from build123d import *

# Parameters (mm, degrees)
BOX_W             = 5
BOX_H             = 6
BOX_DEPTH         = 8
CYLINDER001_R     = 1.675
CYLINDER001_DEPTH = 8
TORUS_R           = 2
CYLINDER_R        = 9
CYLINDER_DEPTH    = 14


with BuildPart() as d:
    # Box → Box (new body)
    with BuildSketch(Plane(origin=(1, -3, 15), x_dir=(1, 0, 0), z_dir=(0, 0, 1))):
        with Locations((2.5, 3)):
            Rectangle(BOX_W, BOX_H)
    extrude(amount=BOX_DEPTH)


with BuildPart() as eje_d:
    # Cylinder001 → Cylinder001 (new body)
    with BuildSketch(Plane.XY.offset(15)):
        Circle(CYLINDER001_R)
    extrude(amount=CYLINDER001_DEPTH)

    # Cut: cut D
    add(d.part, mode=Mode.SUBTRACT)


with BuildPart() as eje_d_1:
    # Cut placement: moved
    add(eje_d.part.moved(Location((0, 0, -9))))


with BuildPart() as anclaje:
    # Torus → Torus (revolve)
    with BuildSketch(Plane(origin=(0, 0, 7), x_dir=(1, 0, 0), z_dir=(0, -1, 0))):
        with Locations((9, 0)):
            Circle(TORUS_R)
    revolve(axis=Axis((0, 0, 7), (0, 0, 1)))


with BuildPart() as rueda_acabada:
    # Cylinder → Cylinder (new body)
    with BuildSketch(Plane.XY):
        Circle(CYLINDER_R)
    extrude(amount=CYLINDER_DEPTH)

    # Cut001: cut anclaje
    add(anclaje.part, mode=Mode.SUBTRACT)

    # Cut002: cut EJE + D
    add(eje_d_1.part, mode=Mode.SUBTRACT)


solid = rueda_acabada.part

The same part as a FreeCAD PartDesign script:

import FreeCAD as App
import Part
import Sketcher

V = App.Vector
Q = App.Units.Quantity

doc = App.newDocument("Part")
params = doc.addObject("Spreadsheet::Sheet", "Params")
for row, (alias, value) in enumerate([
    ("sketch1_width", "5 mm"),
    ("sketch1_height", "6 mm"),
    ("pad1_length", "8 mm"),
    ("sketch2_diameter", "3.35 mm"),
    ("pad2_length", "8 mm"),
    ("sketch3_diameter", "4 mm"),
    ("revolution_angle", "360 deg"),
    ("sketch4_diameter", "18 mm"),
    ("pad3_length", "14 mm"),
], start=1):
    params.set(f"A{row}", alias)
    params.set(f"B{row}", "=" + value)
    params.setAlias(f"B{row}", alias)

body = doc.addObject("PartDesign::Body", "Body")

# Sketch on XY plane
sketch1 = body.newObject("Sketcher::SketchObject", "Sketch")
sketch1.AttachmentSupport = (doc.getObject("XY_Plane"), [""])
sketch1.MapMode = "FlatFace"
sketch1.AttachmentOffset = App.Placement(V(0, 0, 15), App.Rotation())
sketch1.addGeometry([
    Part.LineSegment(V(1, 3, 0), V(1, -3, 0)),
    Part.LineSegment(V(1, -3, 0), V(6, -3, 0)),
    Part.LineSegment(V(6, -3, 0), V(6, 3, 0)),
    Part.LineSegment(V(6, 3, 0), V(1, 3, 0)),
], False)
sketch1.addConstraint([
    Sketcher.Constraint("Coincident", 0, 2, 1, 1),
    Sketcher.Constraint("Coincident", 1, 2, 2, 1),
    Sketcher.Constraint("Coincident", 2, 2, 3, 1),
    Sketcher.Constraint("Coincident", 3, 2, 0, 1),
    Sketcher.Constraint("Vertical", 0),
    Sketcher.Constraint("Horizontal", 1),
    Sketcher.Constraint("Vertical", 2),
    Sketcher.Constraint("Horizontal", 3),
    Sketcher.Constraint("DistanceX", 1, 1, 1, 2, Q("5 mm")),
    Sketcher.Constraint("DistanceY", 0, 2, 0, 1, Q("6 mm")),
    Sketcher.Constraint("DistanceX", -1, 1, 0, 2, Q("1 mm")),
    Sketcher.Constraint("DistanceY", 0, 2, -1, 1, Q("3 mm")),
])
sketch1.setExpression("Constraints[8]", "Params.sketch1_width")
sketch1.setExpression("Constraints[9]", "Params.sketch1_height")
pad1 = body.newObject("PartDesign::Pad", "Pad")
pad1.Profile = sketch1
pad1.setExpression("Length", "Params.pad1_length")
body2 = doc.addObject("PartDesign::Body", "Body001")

# Sketch on XY plane
sketch2 = body2.newObject("Sketcher::SketchObject", "Sketch001")
sketch2.AttachmentSupport = (doc.getObject("XY_Plane001"), [""])
sketch2.MapMode = "FlatFace"
sketch2.AttachmentOffset = App.Placement(V(0, 0, 15), App.Rotation())
sketch2.addGeometry(Part.Circle(V(0, 0, 0), V(0, 0, 1), 1.7), False)
sketch2.addConstraint([
    Sketcher.Constraint("Coincident", 0, 3, -1, 1),
    Sketcher.Constraint("Diameter", 0, Q("3.35 mm")),
])
sketch2.setExpression("Constraints[1]", "Params.sketch2_diameter")
pad2 = body2.newObject("PartDesign::Pad", "Pad001")
pad2.Profile = sketch2
pad2.setExpression("Length", "Params.pad2_length")
doc.recompute()

boolean = body2.newObject("PartDesign::Boolean", "Boolean")
boolean.Type = "Cut"
boolean.addObjects([body])
body3 = doc.addObject("PartDesign::Body", "Body002")
doc.recompute()

body2.Placement = App.Placement(V(0, 0, -9), App.Rotation(V(0, 0, 1), 0))
boolean2 = body3.newObject("PartDesign::Boolean", "Boolean001")
boolean2.Type = "Fuse"
boolean2.addObjects([body2])
body4 = doc.addObject("PartDesign::Body", "Body003")

# Sketch on XZ plane
sketch3 = body4.newObject("Sketcher::SketchObject", "Sketch002")
sketch3.AttachmentSupport = (doc.getObject("XZ_Plane003"), [""])
sketch3.MapMode = "FlatFace"
sketch3.addGeometry(Part.Circle(V(9, 7, 0), V(0, 0, 1), 2), False)
sketch3.addConstraint([
    Sketcher.Constraint("Diameter", 0, Q("4 mm")),
    Sketcher.Constraint("DistanceX", -1, 1, 0, 3, Q("9 mm")),
    Sketcher.Constraint("DistanceY", -1, 1, 0, 3, Q("7 mm")),
])
sketch3.setExpression("Constraints[0]", "Params.sketch3_diameter")
revolution = body4.newObject("PartDesign::Revolution", "Revolution")
revolution.Profile = sketch3
revolution.ReferenceAxis = (sketch3, ["V_Axis"])
revolution.setExpression("Angle", "Params.revolution_angle")
body5 = doc.addObject("PartDesign::Body", "Body004")

# Sketch on XY plane
sketch4 = body5.newObject("Sketcher::SketchObject", "Sketch003")
sketch4.AttachmentSupport = (doc.getObject("XY_Plane004"), [""])
sketch4.MapMode = "FlatFace"
sketch4.addGeometry(Part.Circle(V(0, 0, 0), V(0, 0, 1), 9), False)
sketch4.addConstraint([
    Sketcher.Constraint("Coincident", 0, 3, -1, 1),
    Sketcher.Constraint("Diameter", 0, Q("18 mm")),
])
sketch4.setExpression("Constraints[1]", "Params.sketch4_diameter")
pad3 = body5.newObject("PartDesign::Pad", "Pad002")
pad3.Profile = sketch4
pad3.setExpression("Length", "Params.pad3_length")
doc.recompute()

boolean3 = body5.newObject("PartDesign::Boolean", "Boolean002")
boolean3.Type = "Cut"
boolean3.addObjects([body4])
doc.recompute()

boolean4 = body5.newObject("PartDesign::Boolean", "Boolean003")
boolean4.Type = "Cut"
boolean4.addObjects([body3])

doc.recompute()
